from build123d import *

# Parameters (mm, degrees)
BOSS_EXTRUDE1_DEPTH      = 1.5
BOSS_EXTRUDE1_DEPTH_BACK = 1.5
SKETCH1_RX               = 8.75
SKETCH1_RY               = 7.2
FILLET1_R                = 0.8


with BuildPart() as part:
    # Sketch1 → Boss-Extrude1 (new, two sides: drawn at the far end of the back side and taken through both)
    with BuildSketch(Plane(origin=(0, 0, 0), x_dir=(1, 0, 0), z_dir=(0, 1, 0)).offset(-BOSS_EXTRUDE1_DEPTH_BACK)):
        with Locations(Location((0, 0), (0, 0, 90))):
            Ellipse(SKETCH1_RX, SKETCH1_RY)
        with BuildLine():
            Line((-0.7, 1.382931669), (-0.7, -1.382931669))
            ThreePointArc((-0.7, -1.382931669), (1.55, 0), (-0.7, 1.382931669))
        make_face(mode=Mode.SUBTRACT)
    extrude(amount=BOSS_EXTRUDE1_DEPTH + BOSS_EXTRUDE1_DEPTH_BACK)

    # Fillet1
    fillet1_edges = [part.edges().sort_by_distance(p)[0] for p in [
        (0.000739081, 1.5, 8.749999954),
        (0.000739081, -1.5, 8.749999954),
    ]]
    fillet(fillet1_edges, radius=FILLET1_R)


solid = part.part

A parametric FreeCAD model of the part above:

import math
import FreeCAD as App
import Part
import Sketcher

V = App.Vector


def edges_at(feature, points):
    """Names of the edges that pass closest to the given points."""
    edges = feature.Shape.Edges
    near = lambda p: min(range(len(edges)), key=lambda i: edges[i].distToShape(Part.Vertex(*p))[0])
    return sorted({f"Edge{near(p) + 1}" for p in points})

doc = App.newDocument("Part")
body = doc.addObject("PartDesign::Body", "Body")

sketch1 = body.newObject("Sketcher::SketchObject", "Sketch")
sketch1.AttachmentSupport = (doc.getObject("XZ_Plane"), [""])
sketch1.MapMode = "FlatFace"
sketch1.addGeometry([
    Part.Ellipse(V(0, -8.75, 0), V(7.2, 0, 0), V(0, 0, 0)),
    Part.LineSegment(V(-0.7, 1.382932, 0), V(-0.7, -1.382932, 0)),
    Part.ArcOfCircle(Part.Circle(V(0, 0, 0), V(0, 0, 1), 1.55), math.radians(-116.847213), math.radians(116.847213)),
], False)
sketch1.addConstraint([
    Sketcher.Constraint("Block", 0),
    Sketcher.Constraint("Coincident", 1, 1, 2, 2),
    Sketcher.Constraint("Coincident", 2, 1, 1, 2),
    Sketcher.Constraint("Vertical", 1),
    Sketcher.Constraint("Coincident", 2, 3, -1, 1),
    Sketcher.Constraint("Radius", 2, 1.55),
    Sketcher.Constraint("DistanceX", 1, 1, -1, 1, 0.7),
])
pad1 = body.newObject("PartDesign::Pad", "Pad")
pad1.Profile = sketch1
pad1.Type = "TwoLengths"
pad1.Length = 1.5
pad1.Length2 = 1.5
pad1.Reversed = True
doc.recompute()

fillet = body.newObject("PartDesign::Fillet", "Fillet")
fillet.Base = (pad1, edges_at(pad1, [(0.001, 1.5, 8.75), (0.001, -1.5, 8.75)]))
fillet.Radius = 0.8

doc.recompute()
